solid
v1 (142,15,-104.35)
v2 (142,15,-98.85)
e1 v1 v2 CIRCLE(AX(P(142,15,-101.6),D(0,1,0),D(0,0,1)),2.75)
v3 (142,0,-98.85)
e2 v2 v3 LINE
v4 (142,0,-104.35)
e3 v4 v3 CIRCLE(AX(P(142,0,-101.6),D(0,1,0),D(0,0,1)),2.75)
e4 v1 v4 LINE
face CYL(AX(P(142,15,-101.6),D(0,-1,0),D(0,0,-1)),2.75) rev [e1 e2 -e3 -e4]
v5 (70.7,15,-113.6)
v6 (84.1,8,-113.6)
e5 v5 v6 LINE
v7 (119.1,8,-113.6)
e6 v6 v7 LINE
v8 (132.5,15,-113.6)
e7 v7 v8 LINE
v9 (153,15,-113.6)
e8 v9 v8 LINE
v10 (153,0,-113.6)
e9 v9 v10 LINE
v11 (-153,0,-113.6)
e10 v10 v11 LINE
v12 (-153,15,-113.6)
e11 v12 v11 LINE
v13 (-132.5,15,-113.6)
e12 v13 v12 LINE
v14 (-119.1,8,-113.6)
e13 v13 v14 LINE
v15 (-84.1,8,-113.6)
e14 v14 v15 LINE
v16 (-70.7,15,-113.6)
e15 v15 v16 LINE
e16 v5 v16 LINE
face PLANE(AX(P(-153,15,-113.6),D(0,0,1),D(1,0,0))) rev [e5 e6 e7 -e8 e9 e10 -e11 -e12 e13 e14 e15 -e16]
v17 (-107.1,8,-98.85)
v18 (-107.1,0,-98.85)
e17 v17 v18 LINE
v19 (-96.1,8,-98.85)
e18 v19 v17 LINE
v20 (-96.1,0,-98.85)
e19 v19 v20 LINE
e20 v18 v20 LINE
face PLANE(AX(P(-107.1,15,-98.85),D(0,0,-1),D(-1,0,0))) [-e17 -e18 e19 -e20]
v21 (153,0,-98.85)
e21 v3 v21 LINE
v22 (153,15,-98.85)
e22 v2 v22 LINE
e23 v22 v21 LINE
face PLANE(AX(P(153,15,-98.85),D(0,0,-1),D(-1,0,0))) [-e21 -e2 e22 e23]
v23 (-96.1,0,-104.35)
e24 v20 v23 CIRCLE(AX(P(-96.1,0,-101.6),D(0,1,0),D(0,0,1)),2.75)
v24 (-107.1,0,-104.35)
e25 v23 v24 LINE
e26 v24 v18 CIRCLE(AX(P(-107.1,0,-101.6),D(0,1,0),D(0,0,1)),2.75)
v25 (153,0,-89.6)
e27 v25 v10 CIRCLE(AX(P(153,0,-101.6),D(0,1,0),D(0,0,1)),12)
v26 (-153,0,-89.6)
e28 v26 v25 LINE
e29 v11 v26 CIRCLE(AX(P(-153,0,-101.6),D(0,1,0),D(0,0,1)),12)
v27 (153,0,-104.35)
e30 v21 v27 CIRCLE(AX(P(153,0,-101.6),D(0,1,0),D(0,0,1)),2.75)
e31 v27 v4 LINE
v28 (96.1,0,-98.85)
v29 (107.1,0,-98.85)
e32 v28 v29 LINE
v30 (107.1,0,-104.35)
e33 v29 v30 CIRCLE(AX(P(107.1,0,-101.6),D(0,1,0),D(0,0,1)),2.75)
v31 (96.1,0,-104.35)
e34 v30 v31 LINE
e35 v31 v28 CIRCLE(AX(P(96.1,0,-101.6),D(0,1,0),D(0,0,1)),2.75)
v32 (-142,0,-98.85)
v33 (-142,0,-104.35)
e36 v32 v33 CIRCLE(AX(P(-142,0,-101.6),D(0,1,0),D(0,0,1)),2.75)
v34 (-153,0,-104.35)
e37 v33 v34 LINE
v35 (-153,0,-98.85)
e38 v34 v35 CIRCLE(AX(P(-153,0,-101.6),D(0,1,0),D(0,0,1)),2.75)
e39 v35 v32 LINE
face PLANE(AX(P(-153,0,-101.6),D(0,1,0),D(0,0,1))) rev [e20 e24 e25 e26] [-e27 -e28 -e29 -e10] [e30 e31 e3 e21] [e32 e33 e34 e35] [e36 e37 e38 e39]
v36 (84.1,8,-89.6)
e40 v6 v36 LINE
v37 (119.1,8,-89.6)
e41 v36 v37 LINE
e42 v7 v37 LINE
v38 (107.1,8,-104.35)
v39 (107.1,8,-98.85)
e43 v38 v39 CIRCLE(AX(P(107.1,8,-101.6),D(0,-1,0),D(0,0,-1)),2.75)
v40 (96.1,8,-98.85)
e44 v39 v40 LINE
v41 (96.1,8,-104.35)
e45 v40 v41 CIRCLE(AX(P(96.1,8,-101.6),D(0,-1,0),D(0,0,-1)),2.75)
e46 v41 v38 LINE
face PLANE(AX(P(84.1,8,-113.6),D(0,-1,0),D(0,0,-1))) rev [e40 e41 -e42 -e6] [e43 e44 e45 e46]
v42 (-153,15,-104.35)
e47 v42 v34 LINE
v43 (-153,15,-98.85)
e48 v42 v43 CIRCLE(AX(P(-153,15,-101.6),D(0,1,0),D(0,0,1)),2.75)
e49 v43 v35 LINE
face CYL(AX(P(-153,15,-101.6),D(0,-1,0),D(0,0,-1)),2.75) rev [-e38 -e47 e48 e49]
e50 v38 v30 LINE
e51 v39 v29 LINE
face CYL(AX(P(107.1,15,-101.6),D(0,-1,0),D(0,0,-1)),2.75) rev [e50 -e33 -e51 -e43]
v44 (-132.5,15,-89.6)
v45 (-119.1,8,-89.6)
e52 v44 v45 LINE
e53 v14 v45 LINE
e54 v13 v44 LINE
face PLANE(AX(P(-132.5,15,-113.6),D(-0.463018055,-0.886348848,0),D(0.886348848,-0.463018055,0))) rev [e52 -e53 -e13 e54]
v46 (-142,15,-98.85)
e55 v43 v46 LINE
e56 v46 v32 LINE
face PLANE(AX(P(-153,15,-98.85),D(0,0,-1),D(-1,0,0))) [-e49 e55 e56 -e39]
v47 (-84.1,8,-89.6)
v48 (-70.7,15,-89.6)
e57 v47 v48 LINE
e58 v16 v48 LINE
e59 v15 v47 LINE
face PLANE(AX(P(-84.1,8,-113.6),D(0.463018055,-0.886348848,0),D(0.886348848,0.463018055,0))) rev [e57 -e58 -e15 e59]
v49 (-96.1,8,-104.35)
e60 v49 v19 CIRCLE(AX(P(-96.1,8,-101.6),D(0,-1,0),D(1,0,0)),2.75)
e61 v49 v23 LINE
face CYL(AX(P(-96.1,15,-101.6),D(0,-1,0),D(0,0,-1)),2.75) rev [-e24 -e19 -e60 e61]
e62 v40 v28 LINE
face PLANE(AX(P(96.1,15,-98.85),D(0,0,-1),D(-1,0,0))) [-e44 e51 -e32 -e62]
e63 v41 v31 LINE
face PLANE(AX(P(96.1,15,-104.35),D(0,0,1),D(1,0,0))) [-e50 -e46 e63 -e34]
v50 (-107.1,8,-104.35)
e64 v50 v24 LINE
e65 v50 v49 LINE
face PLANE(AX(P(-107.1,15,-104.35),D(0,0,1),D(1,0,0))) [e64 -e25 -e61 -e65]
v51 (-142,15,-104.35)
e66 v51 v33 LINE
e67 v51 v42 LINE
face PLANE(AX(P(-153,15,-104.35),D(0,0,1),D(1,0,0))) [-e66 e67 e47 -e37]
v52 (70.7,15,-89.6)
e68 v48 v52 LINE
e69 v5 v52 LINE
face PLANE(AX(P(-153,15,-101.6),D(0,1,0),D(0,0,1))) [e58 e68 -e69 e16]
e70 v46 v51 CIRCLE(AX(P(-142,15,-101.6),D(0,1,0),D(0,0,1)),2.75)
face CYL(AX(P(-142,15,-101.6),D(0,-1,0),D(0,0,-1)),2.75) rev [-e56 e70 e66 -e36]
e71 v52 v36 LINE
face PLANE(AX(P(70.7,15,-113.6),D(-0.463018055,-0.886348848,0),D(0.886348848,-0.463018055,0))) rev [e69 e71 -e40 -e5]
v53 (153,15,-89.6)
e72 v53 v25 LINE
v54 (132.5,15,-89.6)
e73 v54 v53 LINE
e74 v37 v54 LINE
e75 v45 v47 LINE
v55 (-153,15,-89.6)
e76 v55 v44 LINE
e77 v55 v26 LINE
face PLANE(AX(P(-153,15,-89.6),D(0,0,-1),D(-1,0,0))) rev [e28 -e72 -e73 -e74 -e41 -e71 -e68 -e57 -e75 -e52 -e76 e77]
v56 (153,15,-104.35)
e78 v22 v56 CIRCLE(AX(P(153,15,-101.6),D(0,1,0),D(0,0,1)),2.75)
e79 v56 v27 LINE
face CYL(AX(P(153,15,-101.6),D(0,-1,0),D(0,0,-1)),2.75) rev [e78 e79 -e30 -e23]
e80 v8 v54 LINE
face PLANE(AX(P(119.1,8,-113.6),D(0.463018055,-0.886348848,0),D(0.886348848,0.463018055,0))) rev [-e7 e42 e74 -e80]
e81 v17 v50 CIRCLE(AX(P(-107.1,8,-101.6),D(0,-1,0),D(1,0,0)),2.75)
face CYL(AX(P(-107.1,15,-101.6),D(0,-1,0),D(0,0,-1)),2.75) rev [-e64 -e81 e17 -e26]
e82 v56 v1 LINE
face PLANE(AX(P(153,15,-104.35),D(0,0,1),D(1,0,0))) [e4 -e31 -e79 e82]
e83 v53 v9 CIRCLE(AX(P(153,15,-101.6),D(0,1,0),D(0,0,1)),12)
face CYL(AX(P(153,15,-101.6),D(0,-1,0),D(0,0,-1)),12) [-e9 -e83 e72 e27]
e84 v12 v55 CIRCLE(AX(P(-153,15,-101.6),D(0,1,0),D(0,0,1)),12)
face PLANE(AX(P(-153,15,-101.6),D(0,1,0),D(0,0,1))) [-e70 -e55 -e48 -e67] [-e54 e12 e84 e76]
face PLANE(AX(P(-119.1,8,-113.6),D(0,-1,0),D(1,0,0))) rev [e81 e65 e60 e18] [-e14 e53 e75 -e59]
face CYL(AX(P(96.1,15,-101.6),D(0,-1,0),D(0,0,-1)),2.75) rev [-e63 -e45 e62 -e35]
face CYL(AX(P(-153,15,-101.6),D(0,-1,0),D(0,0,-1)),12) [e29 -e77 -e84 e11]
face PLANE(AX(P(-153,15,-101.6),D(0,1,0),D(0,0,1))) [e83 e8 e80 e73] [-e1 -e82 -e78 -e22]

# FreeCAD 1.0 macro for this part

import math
import FreeCAD as App
import Part
import Sketcher

V = App.Vector
Q = App.Units.Quantity


def add_polygon(sketch, points):
    """Adds a closed chain of lines whose ends are joined by coincident constraints."""
    first, n = sketch.GeometryCount, len(points)
    for a, b in zip(points, points[1:] + points[:1]):
        sketch.addGeometry(Part.LineSegment(App.Vector(*a, 0), App.Vector(*b, 0)), False)
    for i in range(n):
        sketch.addConstraint(Sketcher.Constraint("Coincident", first + i, 2, first + (i + 1) % n, 1))

doc = App.newDocument("Part")
body = doc.addObject("PartDesign::Body", "Body")

# Sketch on XZ plane
sketch1 = doc.addObject("Sketcher::SketchObject", "Sketch")
body.addObject(sketch1)
sketch1.AttachmentSupport = (doc.XZ_Plane, [""])
sketch1.MapMode = "FlatFace"
sketch1.addGeometry(Part.LineSegment(V(153, -113.6, 0), V(-153, -113.6, 0)), False)
sketch1.addGeometry(Part.ArcOfCircle(Part.Circle(V(-153, -101.6, 0), V(0, 0, 1), 12), math.radians(90), math.radians(270)), False)
sketch1.addGeometry(Part.LineSegment(V(-153, -89.6, 0), V(153, -89.6, 0)), False)
sketch1.addGeometry(Part.ArcOfCircle(Part.Circle(V(153, -101.6, 0), V(0, 0, 1), 12), math.radians(-90), math.radians(90)), False)
sketch1.addGeometry(Part.LineSegment(V(153, -98.8, 0), V(142, -98.8, 0)), False)
sketch1.addGeometry(Part.ArcOfCircle(Part.Circle(V(142, -101.6, 0), V(0, 0, 1), 2.8), math.radians(90), math.radians(270)), False)
sketch1.addGeometry(Part.LineSegment(V(142, -104.3, 0), V(153, -104.3, 0)), False)
sketch1.addGeometry(Part.ArcOfCircle(Part.Circle(V(153, -101.6, 0), V(0, 0, 1), 2.8), math.radians(-90), math.radians(90)), False)
sketch1.addGeometry(Part.LineSegment(V(96.1, -104.3, 0), V(107.1, -104.3, 0)), False)
sketch1.addGeometry(Part.ArcOfCircle(Part.Circle(V(107.1, -101.6, 0), V(0, 0, 1), 2.8), math.radians(-90), math.radians(90)), False)
sketch1.addGeometry(Part.LineSegment(V(107.1, -98.8, 0), V(96.1, -98.8, 0)), False)
sketch1.addGeometry(Part.ArcOfCircle(Part.Circle(V(96.1, -101.6, 0), V(0, 0, 1), 2.8), math.radians(90), math.radians(270)), False)
sketch1.addGeometry(Part.LineSegment(V(-107.1, -104.3, 0), V(-96.1, -104.3, 0)), False)
sketch1.addGeometry(Part.ArcOfCircle(Part.Circle(V(-96.1, -101.6, 0), V(0, 0, 1), 2.8), math.radians(-90), math.radians(90)), False)
sketch1.addGeometry(Part.LineSegment(V(-96.1, -98.8, 0), V(-107.1, -98.8, 0)), False)
sketch1.addGeometry(Part.ArcOfCircle(Part.Circle(V(-107.1, -101.6, 0), V(0, 0, 1), 2.8), math.radians(90), math.radians(270)), False)
sketch1.addGeometry(Part.LineSegment(V(-153, -104.3, 0), V(-142, -104.3, 0)), False)
sketch1.addGeometry(Part.ArcOfCircle(Part.Circle(V(-142, -101.6, 0), V(0, 0, 1), 2.8), math.radians(-90), math.radians(90)), False)
sketch1.addGeometry(Part.LineSegment(V(-142, -98.8, 0), V(-153, -98.8, 0)), False)
sketch1.addGeometry(Part.ArcOfCircle(Part.Circle(V(-153, -101.6, 0), V(0, 0, 1), 2.8), math.radians(90), math.radians(270)), False)
sketch1.addConstraint(Sketcher.Constraint("Tangent", 0, 2, 1, 2))
sketch1.addConstraint(Sketcher.Constraint("Tangent", 1, 1, 2, 1))
sketch1.addConstraint(Sketcher.Constraint("Tangent", 2, 2, 3, 2))
sketch1.addConstraint(Sketcher.Constraint("Tangent", 3, 1, 0, 1))
sketch1.addConstraint(Sketcher.Constraint("Tangent", 4, 2, 5, 1))
sketch1.addConstraint(Sketcher.Constraint("Tangent", 5, 2, 6, 1))
sketch1.addConstraint(Sketcher.Constraint("Tangent", 6, 2, 7, 1))
sketch1.addConstraint(Sketcher.Constraint("Tangent", 7, 2, 4, 1))
sketch1.addConstraint(Sketcher.Constraint("Tangent", 8, 2, 9, 1))
sketch1.addConstraint(Sketcher.Constraint("Tangent", 9, 2, 10, 1))
sketch1.addConstraint(Sketcher.Constraint("Tangent", 10, 2, 11, 1))
sketch1.addConstraint(Sketcher.Constraint("Tangent", 11, 2, 8, 1))
sketch1.addConstraint(Sketcher.Constraint("Tangent", 12, 2, 13, 1))
sketch1.addConstraint(Sketcher.Constraint("Tangent", 13, 2, 14, 1))
sketch1.addConstraint(Sketcher.Constraint("Tangent", 14, 2, 15, 1))
sketch1.addConstraint(Sketcher.Constraint("Tangent", 15, 2, 12, 1))
sketch1.addConstraint(Sketcher.Constraint("Tangent", 16, 2, 17, 1))
sketch1.addConstraint(Sketcher.Constraint("Tangent", 17, 2, 18, 1))
sketch1.addConstraint(Sketcher.Constraint("Tangent", 18, 2, 19, 1))
sketch1.addConstraint(Sketcher.Constraint("Tangent", 19, 2, 16, 1))
sketch1.addConstraint(Sketcher.Constraint("Horizontal", 0))
sketch1.addConstraint(Sketcher.Constraint("Horizontal", 2))
sketch1.addConstraint(Sketcher.Constraint("Horizontal", 4))
sketch1.addConstraint(Sketcher.Constraint("Horizontal", 6))
sketch1.addConstraint(Sketcher.Constraint("Horizontal", 8))
sketch1.addConstraint(Sketcher.Constraint("Horizontal", 10))
sketch1.addConstraint(Sketcher.Constraint("Horizontal", 12))
sketch1.addConstraint(Sketcher.Constraint("Horizontal", 14))
sketch1.addConstraint(Sketcher.Constraint("Horizontal", 16))
sketch1.addConstraint(Sketcher.Constraint("Horizontal", 18))
sketch1.addConstraint(Sketcher.Constraint("Coincident", 7, 3, 3, 3))
sketch1.addConstraint(Sketcher.Constraint("Coincident", 19, 3, 1, 3))
sketch1.addConstraint(Sketcher.Constraint("Equal", 7, 9))
sketch1.addConstraint(Sketcher.Constraint("Equal", 11, 13))
sketch1.addConstraint(Sketcher.Constraint("Equal", 15, 17))
sketch1.addConstraint(Sketcher.Constraint("Symmetric", 11, 3, 13, 3, -2))
sketch1.addConstraint(Sketcher.Constraint("Horizontal", 7, 3, 9, 3))
sketch1.addConstraint(Sketcher.Constraint("Equal", 6, 8))
sketch1.addConstraint(Sketcher.Constraint("Equal", 10, 12))
sketch1.addConstraint(Sketcher.Constraint("Equal", 14, 16))
sketch1.addConstraint(Sketcher.Constraint("Radius", 1, Q("12 mm")))
sketch1.addConstraint(Sketcher.Constraint("DistanceX", 0, 2, 0, 1, Q("306 mm")))
sketch1.addConstraint(Sketcher.Constraint("DistanceX", 4, 2, 4, 1, Q("11 mm")))
sketch1.addConstraint(Sketcher.Constraint("Radius", 5, Q("2.75 mm")))
sketch1.addConstraint(Sketcher.Constraint("DistanceX", 1, 3, -1, 1, Q("153 mm")))
sketch1.addConstraint(Sketcher.Constraint("DistanceY", 1, 3, -1, 1, Q("101.6 mm")))
sketch1.addConstraint(Sketcher.Constraint("DistanceX", -1, 1, 9, 3, Q("107.1 mm")))
pad1 = doc.addObject("PartDesign::Pad", "Pad")
body.addObject(pad1)
pad1.Profile = sketch1
pad1.Length = 15
pad1.Reversed = True

# Sketch on XY plane
sketch2 = doc.addObject("Sketcher::SketchObject", "Sketch001")
body.addObject(sketch2)
sketch2.AttachmentSupport = (doc.XY_Plane, [""])
sketch2.MapMode = "FlatFace"
sketch2.AttachmentOffset = App.Placement(V(0, 0, -89.6), App.Rotation())
add_polygon(sketch2, [(-132, 15), (-119, 8), (-84, 8), (-71, 15)])  # lines 0-3
add_polygon(sketch2, [(119, 8), (132, 15), (71, 15), (84, 8)])  # lines 4-7
sketch2.addConstraint(Sketcher.Constraint("Horizontal", 1))
sketch2.addConstraint(Sketcher.Constraint("Horizontal", 3))
sketch2.addConstraint(Sketcher.Constraint("Horizontal", 5))
sketch2.addConstraint(Sketcher.Constraint("Horizontal", 7))
sketch2.addConstraint(Sketcher.Constraint("Symmetric", 3, 2, 4, 2, -2))
sketch2.addConstraint(Sketcher.Constraint("Symmetric", 1, 2, 6, 2, -2))
sketch2.addConstraint(Sketcher.Constraint("Parallel", 2, 4))
sketch2.addConstraint(Sketcher.Constraint("Parallel", 0, 6))
sketch2.addConstraint(Sketcher.Constraint("Equal", 3, 5))
sketch2.addConstraint(Sketcher.Constraint("DistanceX", 1, 1, 1, 2, Q("35 mm")))
sketch2.addConstraint(Sketcher.Constraint("DistanceX", 3, 2, 3, 1, Q("61.8 mm")))
sketch2.addConstraint(Sketcher.Constraint("DistanceY", -1, 1, 0, 2, Q("8 mm")))
sketch2.addConstraint(Sketcher.Constraint("DistanceY", -1, 1, 2, 2, Q("15 mm")))
sketch2.addConstraint(Sketcher.Constraint("DistanceX", 3, 2, 4, 2, Q("265 mm")))
pocket1 = doc.addObject("PartDesign::Pocket", "Pocket")
body.addObject(pocket1)
pocket1.Profile = sketch2
pocket1.Type = "ThroughAll"

doc.recompute()
